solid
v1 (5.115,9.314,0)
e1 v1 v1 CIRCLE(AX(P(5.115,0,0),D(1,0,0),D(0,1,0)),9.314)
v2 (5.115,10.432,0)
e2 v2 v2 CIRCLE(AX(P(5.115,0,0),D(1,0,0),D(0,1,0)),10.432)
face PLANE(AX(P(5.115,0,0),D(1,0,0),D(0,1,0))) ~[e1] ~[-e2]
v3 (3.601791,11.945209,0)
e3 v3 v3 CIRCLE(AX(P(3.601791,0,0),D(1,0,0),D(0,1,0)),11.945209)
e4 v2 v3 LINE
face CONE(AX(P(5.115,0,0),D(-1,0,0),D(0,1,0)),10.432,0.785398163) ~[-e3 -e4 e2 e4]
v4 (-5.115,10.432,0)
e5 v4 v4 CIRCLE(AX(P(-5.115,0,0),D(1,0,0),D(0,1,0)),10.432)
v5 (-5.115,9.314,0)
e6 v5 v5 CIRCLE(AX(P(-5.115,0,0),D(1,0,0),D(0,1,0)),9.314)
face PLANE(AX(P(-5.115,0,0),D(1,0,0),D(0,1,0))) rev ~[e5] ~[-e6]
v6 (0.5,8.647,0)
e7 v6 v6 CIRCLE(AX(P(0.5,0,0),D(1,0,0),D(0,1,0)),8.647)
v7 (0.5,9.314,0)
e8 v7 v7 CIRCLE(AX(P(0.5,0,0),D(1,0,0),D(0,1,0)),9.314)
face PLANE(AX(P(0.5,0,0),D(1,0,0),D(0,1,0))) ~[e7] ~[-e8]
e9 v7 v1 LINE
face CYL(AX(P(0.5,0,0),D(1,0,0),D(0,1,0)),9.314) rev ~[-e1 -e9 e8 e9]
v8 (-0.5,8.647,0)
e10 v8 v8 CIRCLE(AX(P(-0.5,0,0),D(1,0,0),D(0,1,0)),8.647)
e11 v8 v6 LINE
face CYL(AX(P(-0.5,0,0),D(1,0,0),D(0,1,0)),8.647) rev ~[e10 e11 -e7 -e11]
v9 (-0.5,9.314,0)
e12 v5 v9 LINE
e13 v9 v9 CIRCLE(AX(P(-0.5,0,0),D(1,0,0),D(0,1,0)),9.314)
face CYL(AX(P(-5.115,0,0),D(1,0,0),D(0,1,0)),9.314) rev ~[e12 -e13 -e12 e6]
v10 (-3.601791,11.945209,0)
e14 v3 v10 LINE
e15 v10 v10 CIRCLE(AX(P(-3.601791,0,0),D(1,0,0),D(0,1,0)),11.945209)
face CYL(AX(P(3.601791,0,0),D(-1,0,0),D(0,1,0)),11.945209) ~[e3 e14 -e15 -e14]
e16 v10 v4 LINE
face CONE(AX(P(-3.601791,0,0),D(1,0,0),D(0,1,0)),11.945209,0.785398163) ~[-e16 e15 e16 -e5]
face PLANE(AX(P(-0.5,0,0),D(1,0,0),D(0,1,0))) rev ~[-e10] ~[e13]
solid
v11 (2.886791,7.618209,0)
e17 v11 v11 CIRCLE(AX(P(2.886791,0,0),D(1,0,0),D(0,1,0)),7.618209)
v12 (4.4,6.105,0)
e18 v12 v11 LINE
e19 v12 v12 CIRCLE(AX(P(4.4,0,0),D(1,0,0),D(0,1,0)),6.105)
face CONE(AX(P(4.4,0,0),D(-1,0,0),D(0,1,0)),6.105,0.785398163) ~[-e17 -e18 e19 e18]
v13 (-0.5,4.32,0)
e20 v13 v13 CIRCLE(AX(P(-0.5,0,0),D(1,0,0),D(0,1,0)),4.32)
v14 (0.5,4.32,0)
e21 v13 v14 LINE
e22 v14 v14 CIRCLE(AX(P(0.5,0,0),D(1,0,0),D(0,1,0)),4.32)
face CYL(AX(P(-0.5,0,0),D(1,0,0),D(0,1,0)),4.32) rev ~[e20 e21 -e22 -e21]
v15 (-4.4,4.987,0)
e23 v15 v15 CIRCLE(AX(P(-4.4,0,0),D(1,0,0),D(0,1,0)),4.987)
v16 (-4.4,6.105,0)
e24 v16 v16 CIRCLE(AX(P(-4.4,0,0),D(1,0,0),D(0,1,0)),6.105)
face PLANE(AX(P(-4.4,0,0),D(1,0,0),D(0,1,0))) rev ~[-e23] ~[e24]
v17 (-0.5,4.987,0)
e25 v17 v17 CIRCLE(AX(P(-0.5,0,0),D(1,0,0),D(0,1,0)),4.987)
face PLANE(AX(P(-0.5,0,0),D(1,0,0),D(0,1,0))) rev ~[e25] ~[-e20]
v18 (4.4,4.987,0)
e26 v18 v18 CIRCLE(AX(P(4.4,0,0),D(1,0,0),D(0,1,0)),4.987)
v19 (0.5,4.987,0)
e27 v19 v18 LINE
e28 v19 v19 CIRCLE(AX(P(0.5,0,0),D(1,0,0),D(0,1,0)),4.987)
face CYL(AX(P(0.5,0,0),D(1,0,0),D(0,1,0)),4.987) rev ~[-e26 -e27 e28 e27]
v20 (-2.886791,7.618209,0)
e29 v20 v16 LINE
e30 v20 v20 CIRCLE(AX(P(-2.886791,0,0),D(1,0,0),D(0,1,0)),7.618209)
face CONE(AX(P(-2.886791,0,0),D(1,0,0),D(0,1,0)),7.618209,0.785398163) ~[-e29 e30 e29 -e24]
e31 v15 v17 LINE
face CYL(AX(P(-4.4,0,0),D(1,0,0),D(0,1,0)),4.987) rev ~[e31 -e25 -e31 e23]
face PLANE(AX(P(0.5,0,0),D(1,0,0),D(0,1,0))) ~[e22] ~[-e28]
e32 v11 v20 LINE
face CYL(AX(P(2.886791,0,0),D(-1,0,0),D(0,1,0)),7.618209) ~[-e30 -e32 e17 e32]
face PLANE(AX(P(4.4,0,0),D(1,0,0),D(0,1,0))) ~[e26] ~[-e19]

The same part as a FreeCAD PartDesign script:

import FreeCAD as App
import Part
import Sketcher


def add_polygon(sketch, points):
    """Adds a closed chain of lines whose ends are joined by coincident constraints."""
    first, n = sketch.GeometryCount, len(points)
    for a, b in zip(points, points[1:] + points[:1]):
        sketch.addGeometry(Part.LineSegment(App.Vector(*a, 0), App.Vector(*b, 0)), False)
    for i in range(n):
        sketch.addConstraint(Sketcher.Constraint("Coincident", first + i, 2, first + (i + 1) % n, 1))

doc = App.newDocument("Part")
params = doc.addObject("Spreadsheet::Sheet", "Params")
for row, (alias, value) in enumerate([
    ("sketch1_width", "1 mm"),
    ("sketch1_width2", "3.9 mm"),
    ("sketch1_length", "2.140001 mm"),
    ("revolution_angle", "360 deg"),
    ("sketch2_width", "1 mm"),
    ("sketch2_length", "2.140001 mm"),
    ("revolution2_angle", "360 deg"),
], start=1):
    params.set(f"A{row}", alias)
    params.set(f"B{row}", "=" + value)
    params.setAlias(f"B{row}", alias)

body = doc.addObject("PartDesign::Body", "Body")

# Sketch on XY plane
sketch1 = body.newObject("Sketcher::SketchObject", "Sketch")
sketch1.AttachmentSupport = (doc.getObject("XY_Plane"), [""])
sketch1.MapMode = "FlatFace"
add_polygon(sketch1, [(-0.5, 4.32), (0.5, 4.32), (0.5, 4.987), (4.4, 4.987), (4.4, 6.105), (2.886791, 7.618209), (-2.886791, 7.618209), (-4.4, 6.105), (-4.4, 4.987), (-0.5, 4.987)])  # lines 0-9
sketch1.addConstraint(Sketcher.Constraint("Horizontal", 0))
sketch1.addConstraint(Sketcher.Constraint("Vertical", 1))
sketch1.addConstraint(Sketcher.Constraint("Horizontal", 2))
sketch1.addConstraint(Sketcher.Constraint("Vertical", 3))
sketch1.addConstraint(Sketcher.Constraint("Horizontal", 5))
sketch1.addConstraint(Sketcher.Constraint("Vertical", 7))
sketch1.addConstraint(Sketcher.Constraint("Horizontal", 8))
sketch1.addConstraint(Sketcher.Constraint("Vertical", 9))
sketch1.addConstraint(Sketcher.Constraint("Symmetric", 3, 2, 6, 2, -2))
sketch1.addConstraint(Sketcher.Constraint("Symmetric", 1, 2, 8, 2, -2))
sketch1.addConstraint(Sketcher.Constraint("Perpendicular", 4, 6))
sketch1.addConstraint(Sketcher.Constraint("Equal", 4, 6))
sketch1.addConstraint(Sketcher.Constraint("DistanceX", 0, 1, 0, 2, 1.0))
sketch1.addConstraint(Sketcher.Constraint("DistanceX", 2, 1, 2, 2, 3.9))
sketch1.addConstraint(Sketcher.Constraint("Distance", 4, 2.140001))
sketch1.addConstraint(Sketcher.Constraint("DistanceY", 1, 1, 1, 2, 0.667))
sketch1.addConstraint(Sketcher.Constraint("DistanceY", 3, 1, 3, 2, 1.118))
sketch1.addConstraint(Sketcher.Constraint("DistanceY", -1, 1, 0, 2, 4.32))
sketch1.setExpression("Constraints[22]", "Params.sketch1_width")
sketch1.setExpression("Constraints[23]", "Params.sketch1_width2")
sketch1.setExpression("Constraints[24]", "Params.sketch1_length")
revolution = body.newObject("PartDesign::Revolution", "Revolution")
revolution.Profile = sketch1
revolution.ReferenceAxis = (sketch1, ["H_Axis"])
revolution.setExpression("Angle", "Params.revolution_angle")
body2 = doc.addObject("PartDesign::Body", "Body001")

# Sketch on XY plane
sketch2 = body2.newObject("Sketcher::SketchObject", "Sketch001")
sketch2.AttachmentSupport = (doc.getObject("XY_Plane001"), [""])
sketch2.MapMode = "FlatFace"
add_polygon(sketch2, [(-0.5, 8.647), (0.5, 8.647), (0.5, 9.314), (5.115, 9.314), (5.115, 10.432), (3.601791, 11.945209), (-3.601791, 11.945209), (-5.115, 10.432), (-5.115, 9.314), (-0.5, 9.314)])  # lines 0-9
sketch2.addConstraint(Sketcher.Constraint("Horizontal", 0))
sketch2.addConstraint(Sketcher.Constraint("Vertical", 1))
sketch2.addConstraint(Sketcher.Constraint("Horizontal", 2))
sketch2.addConstraint(Sketcher.Constraint("Vertical", 3))
sketch2.addConstraint(Sketcher.Constraint("Horizontal", 5))
sketch2.addConstraint(Sketcher.Constraint("Vertical", 7))
sketch2.addConstraint(Sketcher.Constraint("Horizontal", 8))
sketch2.addConstraint(Sketcher.Constraint("Vertical", 9))
sketch2.addConstraint(Sketcher.Constraint("Symmetric", 3, 2, 6, 2, -2))
sketch2.addConstraint(Sketcher.Constraint("Symmetric", 1, 2, 8, 2, -2))
sketch2.addConstraint(Sketcher.Constraint("Perpendicular", 4, 6))
sketch2.addConstraint(Sketcher.Constraint("Equal", 4, 6))
sketch2.addConstraint(Sketcher.Constraint("DistanceX", 0, 1, 0, 2, 1.0))
sketch2.addConstraint(Sketcher.Constraint("Distance", 4, 2.140001))
sketch2.addConstraint(Sketcher.Constraint("DistanceX", 2, 1, 2, 2, 4.615))
sketch2.addConstraint(Sketcher.Constraint("DistanceY", 1, 1, 1, 2, 0.667))
sketch2.addConstraint(Sketcher.Constraint("DistanceY", 3, 1, 3, 2, 1.118))
sketch2.addConstraint(Sketcher.Constraint("DistanceY", -1, 1, 0, 2, 8.647))
sketch2.setExpression("Constraints[22]", "Params.sketch2_width")
sketch2.setExpression("Constraints[23]", "Params.sketch2_length")
revolution2 = body2.newObject("PartDesign::Revolution", "Revolution001")
revolution2.Profile = sketch2
revolution2.ReferenceAxis = (sketch2, ["H_Axis"])
revolution2.setExpression("Angle", "Params.revolution2_angle")

doc.recompute()
